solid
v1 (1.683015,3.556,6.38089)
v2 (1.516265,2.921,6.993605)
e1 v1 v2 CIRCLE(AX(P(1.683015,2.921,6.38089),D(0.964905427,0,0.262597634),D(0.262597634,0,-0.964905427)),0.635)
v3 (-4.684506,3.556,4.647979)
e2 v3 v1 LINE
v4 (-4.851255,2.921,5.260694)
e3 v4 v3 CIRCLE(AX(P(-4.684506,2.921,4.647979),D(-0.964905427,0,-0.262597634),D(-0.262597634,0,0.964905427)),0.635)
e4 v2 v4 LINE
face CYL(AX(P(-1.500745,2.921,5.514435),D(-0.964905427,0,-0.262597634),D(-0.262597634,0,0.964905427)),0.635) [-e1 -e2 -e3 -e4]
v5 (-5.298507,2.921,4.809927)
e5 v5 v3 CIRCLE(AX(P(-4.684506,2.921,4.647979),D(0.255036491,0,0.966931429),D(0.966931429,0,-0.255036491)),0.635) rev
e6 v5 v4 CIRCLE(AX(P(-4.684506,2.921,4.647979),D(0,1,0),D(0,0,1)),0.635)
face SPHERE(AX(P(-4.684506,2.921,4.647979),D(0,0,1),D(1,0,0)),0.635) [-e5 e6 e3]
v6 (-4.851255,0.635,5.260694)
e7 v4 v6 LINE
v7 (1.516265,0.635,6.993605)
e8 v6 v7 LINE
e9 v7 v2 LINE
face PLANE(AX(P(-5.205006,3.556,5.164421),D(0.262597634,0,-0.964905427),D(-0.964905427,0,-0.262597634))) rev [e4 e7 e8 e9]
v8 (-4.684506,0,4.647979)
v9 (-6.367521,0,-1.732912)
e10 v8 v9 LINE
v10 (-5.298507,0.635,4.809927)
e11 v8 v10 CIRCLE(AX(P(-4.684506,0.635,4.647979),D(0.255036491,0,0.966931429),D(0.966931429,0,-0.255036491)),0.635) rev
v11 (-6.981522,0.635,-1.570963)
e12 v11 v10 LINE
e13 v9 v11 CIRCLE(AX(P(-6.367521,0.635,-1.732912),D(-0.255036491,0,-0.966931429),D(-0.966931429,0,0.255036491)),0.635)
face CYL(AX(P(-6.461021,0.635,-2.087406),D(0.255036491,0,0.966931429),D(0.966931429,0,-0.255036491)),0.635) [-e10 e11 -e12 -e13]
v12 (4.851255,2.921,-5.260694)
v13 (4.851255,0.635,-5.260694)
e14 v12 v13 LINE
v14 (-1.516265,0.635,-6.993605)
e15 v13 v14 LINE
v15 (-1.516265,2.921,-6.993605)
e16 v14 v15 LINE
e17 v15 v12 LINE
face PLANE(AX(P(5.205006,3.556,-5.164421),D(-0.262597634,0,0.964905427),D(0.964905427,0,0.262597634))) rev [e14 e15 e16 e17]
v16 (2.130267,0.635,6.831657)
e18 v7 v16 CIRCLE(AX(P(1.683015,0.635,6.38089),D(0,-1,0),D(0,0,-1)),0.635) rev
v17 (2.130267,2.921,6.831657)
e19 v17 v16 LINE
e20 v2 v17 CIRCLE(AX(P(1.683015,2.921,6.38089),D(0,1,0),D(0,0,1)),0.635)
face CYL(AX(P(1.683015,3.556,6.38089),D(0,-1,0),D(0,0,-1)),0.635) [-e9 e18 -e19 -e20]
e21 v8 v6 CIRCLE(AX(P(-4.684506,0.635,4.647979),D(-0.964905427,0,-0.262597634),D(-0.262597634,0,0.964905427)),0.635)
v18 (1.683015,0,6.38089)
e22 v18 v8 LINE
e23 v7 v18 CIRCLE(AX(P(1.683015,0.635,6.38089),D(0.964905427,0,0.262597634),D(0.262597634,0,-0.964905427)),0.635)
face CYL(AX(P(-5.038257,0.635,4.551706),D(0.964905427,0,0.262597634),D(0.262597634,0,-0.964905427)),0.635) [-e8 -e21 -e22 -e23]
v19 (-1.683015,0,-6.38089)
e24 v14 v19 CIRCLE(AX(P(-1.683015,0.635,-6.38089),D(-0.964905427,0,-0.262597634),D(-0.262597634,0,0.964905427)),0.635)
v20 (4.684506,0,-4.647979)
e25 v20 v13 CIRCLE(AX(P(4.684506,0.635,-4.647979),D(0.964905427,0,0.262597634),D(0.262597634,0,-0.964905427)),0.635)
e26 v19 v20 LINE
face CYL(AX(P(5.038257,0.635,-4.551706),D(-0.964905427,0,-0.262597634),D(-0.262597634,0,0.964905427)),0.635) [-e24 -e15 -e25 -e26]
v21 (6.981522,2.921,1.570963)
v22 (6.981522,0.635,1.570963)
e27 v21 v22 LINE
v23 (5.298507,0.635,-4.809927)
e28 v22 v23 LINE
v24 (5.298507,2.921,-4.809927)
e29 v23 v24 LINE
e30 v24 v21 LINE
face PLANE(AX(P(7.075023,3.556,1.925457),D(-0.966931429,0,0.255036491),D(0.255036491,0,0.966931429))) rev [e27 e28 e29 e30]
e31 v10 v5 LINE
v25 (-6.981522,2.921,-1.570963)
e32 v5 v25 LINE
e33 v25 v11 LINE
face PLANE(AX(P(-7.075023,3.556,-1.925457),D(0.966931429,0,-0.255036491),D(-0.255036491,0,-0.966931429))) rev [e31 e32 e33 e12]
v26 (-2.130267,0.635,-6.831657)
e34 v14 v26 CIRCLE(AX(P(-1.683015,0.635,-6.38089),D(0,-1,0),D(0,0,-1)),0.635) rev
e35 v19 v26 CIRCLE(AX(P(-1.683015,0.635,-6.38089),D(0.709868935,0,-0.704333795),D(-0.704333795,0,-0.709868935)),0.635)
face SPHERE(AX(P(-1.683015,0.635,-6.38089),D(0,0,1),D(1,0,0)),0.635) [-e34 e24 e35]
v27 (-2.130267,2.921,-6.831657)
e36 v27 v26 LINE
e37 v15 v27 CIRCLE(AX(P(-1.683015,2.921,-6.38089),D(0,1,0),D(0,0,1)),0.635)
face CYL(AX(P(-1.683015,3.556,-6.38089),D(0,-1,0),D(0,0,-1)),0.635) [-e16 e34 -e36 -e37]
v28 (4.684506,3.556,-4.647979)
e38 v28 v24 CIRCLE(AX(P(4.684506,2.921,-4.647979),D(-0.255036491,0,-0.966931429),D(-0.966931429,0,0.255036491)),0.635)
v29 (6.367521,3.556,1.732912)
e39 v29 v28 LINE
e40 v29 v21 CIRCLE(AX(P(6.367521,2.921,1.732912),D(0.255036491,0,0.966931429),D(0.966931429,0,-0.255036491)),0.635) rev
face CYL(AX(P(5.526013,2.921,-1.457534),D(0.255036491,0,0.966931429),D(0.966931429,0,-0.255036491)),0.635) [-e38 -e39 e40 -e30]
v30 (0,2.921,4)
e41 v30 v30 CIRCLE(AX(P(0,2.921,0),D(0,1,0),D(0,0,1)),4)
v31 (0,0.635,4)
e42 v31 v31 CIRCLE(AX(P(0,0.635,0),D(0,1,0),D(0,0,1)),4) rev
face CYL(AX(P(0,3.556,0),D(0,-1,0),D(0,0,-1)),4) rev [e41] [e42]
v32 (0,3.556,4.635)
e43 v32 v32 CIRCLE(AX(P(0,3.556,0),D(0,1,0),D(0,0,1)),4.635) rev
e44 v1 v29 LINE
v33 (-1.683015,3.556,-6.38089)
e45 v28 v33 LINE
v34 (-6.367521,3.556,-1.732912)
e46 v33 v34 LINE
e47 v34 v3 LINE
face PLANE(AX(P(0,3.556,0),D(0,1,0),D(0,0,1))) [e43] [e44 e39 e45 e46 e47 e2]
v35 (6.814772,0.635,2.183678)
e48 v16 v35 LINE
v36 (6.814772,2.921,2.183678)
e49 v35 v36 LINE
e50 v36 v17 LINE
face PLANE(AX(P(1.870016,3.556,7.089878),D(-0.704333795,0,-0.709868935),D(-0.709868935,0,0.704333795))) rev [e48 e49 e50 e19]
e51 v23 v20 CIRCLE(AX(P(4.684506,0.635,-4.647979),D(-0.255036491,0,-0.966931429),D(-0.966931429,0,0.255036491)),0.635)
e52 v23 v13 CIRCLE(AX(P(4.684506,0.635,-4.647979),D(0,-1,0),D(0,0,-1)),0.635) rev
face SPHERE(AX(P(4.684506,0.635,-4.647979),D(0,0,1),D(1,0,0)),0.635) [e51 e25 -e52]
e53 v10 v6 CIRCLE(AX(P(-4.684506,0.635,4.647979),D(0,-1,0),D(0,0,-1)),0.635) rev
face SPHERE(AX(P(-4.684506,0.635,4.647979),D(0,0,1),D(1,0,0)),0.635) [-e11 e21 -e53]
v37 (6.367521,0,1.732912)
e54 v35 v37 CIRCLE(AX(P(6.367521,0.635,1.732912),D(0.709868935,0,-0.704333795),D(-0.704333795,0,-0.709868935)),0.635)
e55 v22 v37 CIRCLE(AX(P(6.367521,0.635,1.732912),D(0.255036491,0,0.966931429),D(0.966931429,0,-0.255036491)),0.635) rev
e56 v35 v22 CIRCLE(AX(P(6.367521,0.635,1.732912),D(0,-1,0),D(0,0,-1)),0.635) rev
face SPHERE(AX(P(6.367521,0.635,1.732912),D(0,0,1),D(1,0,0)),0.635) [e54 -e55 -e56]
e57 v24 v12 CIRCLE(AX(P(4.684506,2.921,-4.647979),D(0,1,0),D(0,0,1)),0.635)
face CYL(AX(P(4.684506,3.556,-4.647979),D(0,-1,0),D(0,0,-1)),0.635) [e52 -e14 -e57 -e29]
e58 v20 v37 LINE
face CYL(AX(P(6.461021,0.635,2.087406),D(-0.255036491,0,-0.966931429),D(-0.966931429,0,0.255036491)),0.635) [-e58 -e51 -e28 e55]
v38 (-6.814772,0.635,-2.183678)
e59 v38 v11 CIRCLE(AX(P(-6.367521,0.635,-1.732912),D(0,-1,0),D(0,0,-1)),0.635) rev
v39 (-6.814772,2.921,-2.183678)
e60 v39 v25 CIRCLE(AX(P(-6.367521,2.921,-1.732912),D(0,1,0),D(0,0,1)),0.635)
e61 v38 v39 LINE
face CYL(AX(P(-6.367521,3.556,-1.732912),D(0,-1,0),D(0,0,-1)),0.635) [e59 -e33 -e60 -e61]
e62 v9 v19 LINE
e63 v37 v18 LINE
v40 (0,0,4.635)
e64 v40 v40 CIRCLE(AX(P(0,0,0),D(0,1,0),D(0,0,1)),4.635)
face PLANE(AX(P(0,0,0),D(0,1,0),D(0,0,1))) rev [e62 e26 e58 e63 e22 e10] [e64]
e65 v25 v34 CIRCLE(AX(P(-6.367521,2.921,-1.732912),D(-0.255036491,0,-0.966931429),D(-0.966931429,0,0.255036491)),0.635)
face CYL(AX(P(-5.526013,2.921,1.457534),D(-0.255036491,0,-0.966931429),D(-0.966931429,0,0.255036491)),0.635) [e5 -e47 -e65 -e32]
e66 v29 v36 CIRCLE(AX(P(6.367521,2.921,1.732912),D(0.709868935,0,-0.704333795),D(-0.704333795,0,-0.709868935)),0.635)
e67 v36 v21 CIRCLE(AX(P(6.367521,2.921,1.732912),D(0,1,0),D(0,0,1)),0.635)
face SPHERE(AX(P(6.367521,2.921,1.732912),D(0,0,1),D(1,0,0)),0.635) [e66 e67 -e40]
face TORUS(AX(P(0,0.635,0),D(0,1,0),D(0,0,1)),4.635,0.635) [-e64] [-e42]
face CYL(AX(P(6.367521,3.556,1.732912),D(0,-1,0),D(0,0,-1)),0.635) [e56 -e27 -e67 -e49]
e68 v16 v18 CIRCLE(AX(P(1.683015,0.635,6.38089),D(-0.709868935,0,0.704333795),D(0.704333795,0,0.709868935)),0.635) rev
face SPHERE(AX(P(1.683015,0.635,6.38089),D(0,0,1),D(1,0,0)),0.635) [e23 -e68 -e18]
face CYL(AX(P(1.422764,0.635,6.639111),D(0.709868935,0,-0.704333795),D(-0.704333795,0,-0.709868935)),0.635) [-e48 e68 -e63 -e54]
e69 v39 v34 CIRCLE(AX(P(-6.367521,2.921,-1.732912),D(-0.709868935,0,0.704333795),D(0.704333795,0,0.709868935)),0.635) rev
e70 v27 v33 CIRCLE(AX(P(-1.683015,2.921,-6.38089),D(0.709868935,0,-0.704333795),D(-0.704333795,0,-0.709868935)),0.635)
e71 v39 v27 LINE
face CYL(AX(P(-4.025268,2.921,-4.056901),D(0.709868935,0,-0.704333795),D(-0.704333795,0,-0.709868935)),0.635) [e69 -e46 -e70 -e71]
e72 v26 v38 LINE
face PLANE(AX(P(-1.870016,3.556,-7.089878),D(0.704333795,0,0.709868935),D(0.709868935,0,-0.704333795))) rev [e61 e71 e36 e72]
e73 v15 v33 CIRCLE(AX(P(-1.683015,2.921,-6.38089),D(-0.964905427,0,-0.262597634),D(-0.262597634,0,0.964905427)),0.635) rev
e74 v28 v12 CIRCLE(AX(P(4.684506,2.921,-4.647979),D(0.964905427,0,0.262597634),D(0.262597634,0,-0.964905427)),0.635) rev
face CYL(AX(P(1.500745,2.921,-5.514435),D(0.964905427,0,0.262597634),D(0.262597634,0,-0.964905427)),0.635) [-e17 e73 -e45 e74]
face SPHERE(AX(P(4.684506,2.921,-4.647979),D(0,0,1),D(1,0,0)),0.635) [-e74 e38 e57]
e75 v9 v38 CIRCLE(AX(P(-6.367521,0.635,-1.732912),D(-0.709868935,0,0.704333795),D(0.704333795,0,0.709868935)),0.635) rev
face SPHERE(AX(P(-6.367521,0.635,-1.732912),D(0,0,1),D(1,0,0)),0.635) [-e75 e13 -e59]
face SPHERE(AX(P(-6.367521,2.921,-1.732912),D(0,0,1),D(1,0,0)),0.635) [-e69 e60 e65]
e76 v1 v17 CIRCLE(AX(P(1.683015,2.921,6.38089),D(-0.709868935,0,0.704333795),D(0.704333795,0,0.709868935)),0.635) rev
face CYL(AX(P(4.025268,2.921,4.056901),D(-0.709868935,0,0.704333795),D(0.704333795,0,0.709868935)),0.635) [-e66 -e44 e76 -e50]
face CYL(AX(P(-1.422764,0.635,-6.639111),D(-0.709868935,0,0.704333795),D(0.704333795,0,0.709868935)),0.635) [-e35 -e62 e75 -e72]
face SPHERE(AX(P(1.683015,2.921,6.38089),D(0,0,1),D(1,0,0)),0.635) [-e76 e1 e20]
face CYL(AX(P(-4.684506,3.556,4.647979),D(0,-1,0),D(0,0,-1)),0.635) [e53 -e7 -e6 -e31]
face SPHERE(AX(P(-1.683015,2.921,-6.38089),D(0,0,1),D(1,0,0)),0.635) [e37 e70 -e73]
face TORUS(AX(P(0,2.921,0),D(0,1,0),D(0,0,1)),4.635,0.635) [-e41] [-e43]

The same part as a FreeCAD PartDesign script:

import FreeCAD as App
import Part
import Sketcher
Q = App.Units.Quantity


def edges_at(feature, points):
    """Names of the edges that pass closest to the given points."""
    edges = feature.Shape.Edges
    near = lambda p: min(range(len(edges)), key=lambda i: edges[i].distToShape(Part.Vertex(*p))[0])
    return sorted({f"Edge{near(p) + 1}" for p in points})


def add_polygon(sketch, points):
    """Adds a closed chain of lines whose ends are joined by coincident constraints."""
    first, n = sketch.GeometryCount, len(points)
    for a, b in zip(points, points[1:] + points[:1]):
        sketch.addGeometry(Part.LineSegment(App.Vector(*a, 0), App.Vector(*b, 0)), False)
    for i in range(n):
        sketch.addConstraint(Sketcher.Constraint("Coincident", first + i, 2, first + (i + 1) % n, 1))

doc = App.newDocument("Part")
body = doc.addObject("PartDesign::Body", "Body")

sketch1 = doc.addObject("Sketcher::SketchObject", "Sketch")
body.addObject(sketch1)
sketch1.AttachmentSupport = (doc.XZ_Plane, [""])
sketch1.MapMode = "FlatFace"
add_polygon(sketch1, [(5.2, -5.2), (-1.9, -7.1), (-7.1, -1.9), (-5.2, 5.2), (1.9, 7.1), (7.1, 1.9)])
sketch1.addGeometry(Part.Circle(App.Vector(0, 0, 0), App.Vector(0, 0, 1), 4), False)
sketch1.addConstraint(Sketcher.Constraint("Coincident", 6, 3, -1, 1))
sketch1.addConstraint(Sketcher.Constraint("Symmetric", 0, 2, 3, 2, -1, 1))
sketch1.addConstraint(Sketcher.Constraint("Symmetric", 1, 2, 4, 2, -1, 1))
sketch1.addConstraint(Sketcher.Constraint("Symmetric", 2, 2, 5, 2, -1, 1))
sketch1.addConstraint(Sketcher.Constraint("Equal", 0, 1))
sketch1.addConstraint(Sketcher.Constraint("Equal", 1, 2))
sketch1.addConstraint(Sketcher.Constraint("Diameter", 6, 8.0))
sketch1.addConstraint(Sketcher.Constraint("DistanceY", 0, 2, 2, 2, 12.254299))
sketch1.addConstraint(Sketcher.Constraint("Distance", 0, 7.332348))
sketch1.addConstraint(Sketcher.Constraint("DistanceY", 0, 2, -1, 1, 7.089878))
sketch1.addConstraint(Sketcher.Constraint("DistanceY", 0, 2, 1, 2, 5.164421))
pad1 = doc.addObject("PartDesign::Pad", "Pad")
body.addObject(pad1)
pad1.Profile = sketch1
pad1.Length = Q("0.14 in")
pad1.Reversed = True
doc.recompute()

fillet = doc.addObject("PartDesign::Fillet", "Fillet")
body.addObject(fillet)
fillet.Base = (pad1, edges_at(pad1, [(0, 0, -4), (0, 3.556, -4)]))
fillet.Radius = Q("0.025 in")
doc.recompute()

fillet2 = doc.addObject("PartDesign::Fillet", "Fillet001")
body.addObject(fillet2)
fillet2.Base = (fillet, ["Edge1"])
fillet2.UseAllEdges = True
fillet2.Radius = Q("0.025 in")

doc.recompute()
